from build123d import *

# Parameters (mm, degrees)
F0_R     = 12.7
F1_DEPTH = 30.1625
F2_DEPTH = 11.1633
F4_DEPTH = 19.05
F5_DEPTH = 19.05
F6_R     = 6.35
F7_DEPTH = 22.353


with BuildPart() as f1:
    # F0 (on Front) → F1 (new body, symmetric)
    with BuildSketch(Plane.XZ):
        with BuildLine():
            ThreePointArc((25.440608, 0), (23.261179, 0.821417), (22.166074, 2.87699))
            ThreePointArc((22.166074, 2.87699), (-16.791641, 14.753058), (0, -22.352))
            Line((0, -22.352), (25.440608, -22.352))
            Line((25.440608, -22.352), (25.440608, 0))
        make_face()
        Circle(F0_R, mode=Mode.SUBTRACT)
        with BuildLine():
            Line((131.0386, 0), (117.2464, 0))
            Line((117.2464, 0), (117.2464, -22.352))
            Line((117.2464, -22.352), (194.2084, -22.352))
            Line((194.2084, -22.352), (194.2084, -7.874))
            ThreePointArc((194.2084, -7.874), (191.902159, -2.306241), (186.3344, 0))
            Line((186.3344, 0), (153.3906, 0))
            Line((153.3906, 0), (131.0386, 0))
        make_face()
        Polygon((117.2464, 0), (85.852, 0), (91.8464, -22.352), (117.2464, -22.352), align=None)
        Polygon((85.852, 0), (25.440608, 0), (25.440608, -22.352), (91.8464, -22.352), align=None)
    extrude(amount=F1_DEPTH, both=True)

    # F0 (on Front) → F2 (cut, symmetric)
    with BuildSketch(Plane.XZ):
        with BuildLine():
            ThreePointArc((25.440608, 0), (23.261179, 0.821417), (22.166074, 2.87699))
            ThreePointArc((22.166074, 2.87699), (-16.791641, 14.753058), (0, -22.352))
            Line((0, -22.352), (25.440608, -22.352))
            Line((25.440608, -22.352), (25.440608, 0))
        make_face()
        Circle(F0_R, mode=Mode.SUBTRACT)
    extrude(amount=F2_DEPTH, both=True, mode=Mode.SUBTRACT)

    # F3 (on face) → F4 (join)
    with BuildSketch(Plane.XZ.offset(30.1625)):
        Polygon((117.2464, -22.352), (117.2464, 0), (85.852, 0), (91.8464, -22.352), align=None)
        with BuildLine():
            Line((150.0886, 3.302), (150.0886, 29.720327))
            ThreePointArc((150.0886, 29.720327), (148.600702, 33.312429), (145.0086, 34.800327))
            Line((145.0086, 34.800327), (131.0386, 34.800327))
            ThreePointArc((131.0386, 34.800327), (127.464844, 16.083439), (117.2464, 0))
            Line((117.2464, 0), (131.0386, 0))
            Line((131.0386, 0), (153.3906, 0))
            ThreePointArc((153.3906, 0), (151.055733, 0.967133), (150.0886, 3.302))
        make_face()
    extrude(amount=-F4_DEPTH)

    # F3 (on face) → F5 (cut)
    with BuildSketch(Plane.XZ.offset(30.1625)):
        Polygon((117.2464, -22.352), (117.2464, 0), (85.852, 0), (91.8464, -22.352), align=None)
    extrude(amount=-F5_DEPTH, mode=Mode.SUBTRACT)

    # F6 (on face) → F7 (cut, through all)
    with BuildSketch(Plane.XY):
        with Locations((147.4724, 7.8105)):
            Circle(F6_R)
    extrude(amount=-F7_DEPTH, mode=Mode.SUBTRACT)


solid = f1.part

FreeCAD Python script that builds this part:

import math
import FreeCAD as App
import Part
import Sketcher
Q = App.Units.Quantity


def add_polygon(sketch, points):
    """Adds a closed chain of lines whose ends are joined by coincident constraints."""
    first, n = sketch.GeometryCount, len(points)
    for a, b in zip(points, points[1:] + points[:1]):
        sketch.addGeometry(Part.LineSegment(App.Vector(*a, 0), App.Vector(*b, 0)), False)
    for i in range(n):
        sketch.addConstraint(Sketcher.Constraint("Coincident", first + i, 2, first + (i + 1) % n, 1))

doc = App.newDocument("Part")
params = doc.addObject("Spreadsheet::Sheet", "Params")
for row, (alias, value) in enumerate([
    ("sketch1_diameter", "1 in"),
    ("sketch1_radius", "0.31 in"),
    ("sketch1_radius2", "0.1300001 in"),
    ("sketch1_radius3", "0.88 in"),
    ("sketch1_width", "7.646 in"),
    ("pad1_length", "2.375 in"),
    ("sketch2_diameter", "1 in"),
    ("sketch2_radius", "0.1300001 in"),
    ("sketch2_radius2", "0.88 in"),
    ("pocket1_length", "0.879 in"),
    ("sketch3_radius", "2 in"),
    ("sketch3_radius2", "0.2000001 in"),
    ("sketch3_width", "1 in"),
    ("sketch3_radius3", "0.1299999 in"),
    ("sketch3_width2", "0.55 in"),
    ("pad2_length", "0.75 in"),
    ("sketch4_width", "1 in"),
    ("sketch4_height", "0.88 in"),
    ("sketch4_width2", "1.236 in"),
    ("pocket2_length", "0.75 in"),
    ("sketch5_diameter", "0.5 in"),
], start=1):
    params.set(f"A{row}", alias)
    params.set(f"B{row}", "=" + value)
    params.setAlias(f"B{row}", alias)

body = doc.addObject("PartDesign::Body", "Body")

sketch1 = body.newObject("Sketcher::SketchObject", "Sketch")
sketch1.AttachmentSupport = (doc.getObject("XZ_Plane"), [""])
sketch1.MapMode = "FlatFace"
sketch1.addGeometry([
    Part.LineSegment(App.Vector(0, -22.4, 0), App.Vector(194.2, -22.4, 0)),
    Part.LineSegment(App.Vector(194.2, -22.4, 0), App.Vector(194.2, -7.9, 0)),
    Part.ArcOfCircle(Part.Circle(App.Vector(186.3, -7.9, 0), App.Vector(0, 0, 1), 7.9), math.radians(0), math.radians(90)),
    Part.LineSegment(App.Vector(186.3, 0, 0), App.Vector(25.4, 0, 0)),
    Part.ArcOfCircle(Part.Circle(App.Vector(25.4, 3.3, 0), App.Vector(0, 0, 1), 3.3), math.radians(-173), math.radians(-90)),
    Part.ArcOfCircle(Part.Circle(App.Vector(0, 0, 0), App.Vector(0, 0, 1), 22.4), math.radians(7), math.radians(270)),
    Part.Circle(App.Vector(0, 0, 0), App.Vector(0, 0, 1), 12.7),
], False)
sketch1.addConstraint([
    Sketcher.Constraint("Coincident", 0, 2, 1, 1),
    Sketcher.Constraint("Tangent", 1, 2, 2, 1),
    Sketcher.Constraint("Tangent", 2, 2, 3, 1),
    Sketcher.Constraint("Tangent", 3, 2, 4, 2),
    Sketcher.Constraint("Tangent", 4, 1, 5, 1),
    Sketcher.Constraint("Tangent", 5, 2, 0, 1),
    Sketcher.Constraint("Horizontal", 0),
    Sketcher.Constraint("Vertical", 1),
    Sketcher.Constraint("Horizontal", 3),
    Sketcher.Constraint("Coincident", 5, 3, -1, 1),
    Sketcher.Constraint("Coincident", 6, 3, -1, 1),
    Sketcher.Constraint("PointOnObject", 2, 2, -1),
    Sketcher.Constraint("Diameter", 6, Q("1 in")),
    Sketcher.Constraint("Radius", 2, Q("0.31 in")),
    Sketcher.Constraint("Radius", 4, Q("0.1300001 in")),
    Sketcher.Constraint("Radius", 5, Q("0.88 in")),
    Sketcher.Constraint("DistanceX", 0, 1, 0, 2, Q("7.646 in")),
])
sketch1.setExpression("Constraints[12]", "Params.sketch1_diameter")
sketch1.setExpression("Constraints[13]", "Params.sketch1_radius")
sketch1.setExpression("Constraints[14]", "Params.sketch1_radius2")
sketch1.setExpression("Constraints[15]", "Params.sketch1_radius3")
sketch1.setExpression("Constraints[16]", "Params.sketch1_width")
pad1 = body.newObject("PartDesign::Pad", "Pad")
pad1.Profile = sketch1
pad1.setExpression("Length", "Params.pad1_length")
pad1.Midplane = True

sketch2 = body.newObject("Sketcher::SketchObject", "Sketch001")
sketch2.AttachmentSupport = (doc.getObject("XZ_Plane"), [""])
sketch2.MapMode = "FlatFace"
sketch2.addGeometry([
    Part.ArcOfCircle(Part.Circle(App.Vector(25.4, 3.3, 0), App.Vector(0, 0, 1), 3.3), math.radians(-173), math.radians(-90)),
    Part.ArcOfCircle(Part.Circle(App.Vector(0, 0, 0), App.Vector(0, 0, 1), 22.4), math.radians(7), math.radians(270)),
    Part.LineSegment(App.Vector(0, -22.4, 0), App.Vector(25.4, -22.4, 0)),
    Part.LineSegment(App.Vector(25.4, -22.4, 0), App.Vector(25.4, 0, 0)),
    Part.Circle(App.Vector(0, 0, 0), App.Vector(0, 0, 1), 12.7),
], False)
sketch2.addConstraint([
    Sketcher.Constraint("Tangent", 0, 1, 1, 1),
    Sketcher.Constraint("Tangent", 1, 2, 2, 1),
    Sketcher.Constraint("Coincident", 2, 2, 3, 1),
    Sketcher.Constraint("Coincident", 3, 2, 0, 2),
    Sketcher.Constraint("Horizontal", 2),
    Sketcher.Constraint("Vertical", 3),
    Sketcher.Constraint("Coincident", 1, 3, -1, 1),
    Sketcher.Constraint("Coincident", 4, 3, -1, 1),
    Sketcher.Constraint("PointOnObject", 3, 2, -1),
    Sketcher.Constraint("Vertical", 0, 3, 2, 2),
    Sketcher.Constraint("Diameter", 4, Q("1 in")),
    Sketcher.Constraint("Radius", 0, Q("0.1300001 in")),
    Sketcher.Constraint("Radius", 1, Q("0.88 in")),
])
sketch2.setExpression("Constraints[10]", "Params.sketch2_diameter")
sketch2.setExpression("Constraints[11]", "Params.sketch2_radius")
sketch2.setExpression("Constraints[12]", "Params.sketch2_radius2")
pocket1 = body.newObject("PartDesign::Pocket", "Pocket")
pocket1.Profile = sketch2
pocket1.setExpression("Length", "Params.pocket1_length")
pocket1.Midplane = True

sketch3 = body.newObject("Sketcher::SketchObject", "Sketch002")
sketch3.AttachmentSupport = (doc.getObject("XZ_Plane"), [""])
sketch3.MapMode = "FlatFace"
sketch3.AttachmentOffset = App.Placement(App.Vector(0, 0, 1.1875 * 25.4), App.Rotation())
add_polygon(sketch3, [(117.2, -22.4), (117.2, 0), (85.9, 0), (91.8, -22.4)])
sketch3.addGeometry(Part.LineSegment(App.Vector(150.1, 3.3, 0), App.Vector(150.1, 29.7, 0)), False)
sketch3.addGeometry(Part.ArcOfCircle(Part.Circle(App.Vector(145, 29.7, 0), App.Vector(0, 0, 1), 5.1), math.radians(0), math.radians(90)), False)
sketch3.addGeometry(Part.LineSegment(App.Vector(145, 34.8, 0), App.Vector(131, 34.8, 0)), False)
sketch3.addGeometry(Part.ArcOfCircle(Part.Circle(App.Vector(80.2, 34.8, 0), App.Vector(0, 0, 1), 50.8), math.radians(-43), math.radians(0)), False)
sketch3.addGeometry(Part.LineSegment(App.Vector(117.2, 0, 0), App.Vector(153.4, 0, 0)), False)
sketch3.addGeometry(Part.ArcOfCircle(Part.Circle(App.Vector(153.4, 3.3, 0), App.Vector(0, 0, 1), 3.3), math.radians(180), math.radians(270)), False)
sketch3.addConstraint([
    Sketcher.Constraint("Tangent", 4, 2, 5, 1),
    Sketcher.Constraint("Tangent", 5, 2, 6, 1),
    Sketcher.Constraint("Coincident", 6, 2, 7, 2),
    Sketcher.Constraint("Coincident", 7, 1, 8, 1),
    Sketcher.Constraint("Tangent", 8, 2, 9, 2),
    Sketcher.Constraint("Tangent", 9, 1, 4, 1),
    Sketcher.Constraint("Vertical", 0),
    Sketcher.Constraint("Horizontal", 1),
    Sketcher.Constraint("Horizontal", 3),
    Sketcher.Constraint("Vertical", 4),
    Sketcher.Constraint("Horizontal", 6),
    Sketcher.Constraint("Horizontal", 8),
    Sketcher.Constraint("Coincident", 7, 1, 0, 2),
    Sketcher.Constraint("PointOnObject", 0, 2, -1),
    Sketcher.Constraint("Horizontal", 7, 3, 5, 2),
    Sketcher.Constraint("Radius", 7, Q("2 in")),
    Sketcher.Constraint("Radius", 5, Q("0.2000001 in")),
    Sketcher.Constraint("DistanceX", 3, 1, 3, 2, Q("1 in")),
    Sketcher.Constraint("Radius", 9, Q("0.1299999 in")),
    Sketcher.Constraint("DistanceX", 6, 2, 6, 1, Q("0.55 in")),
    Sketcher.Constraint("DistanceY", 0, 1, 0, 2, Q("0.88 in")),
    Sketcher.Constraint("DistanceX", 1, 2, 1, 1, Q("1.236 in")),
    Sketcher.Constraint("DistanceX", 8, 1, 8, 2, Q("1.423 in")),
    Sketcher.Constraint("DistanceX", -1, 1, 1, 2, Q("3.38 in")),
])
sketch3.setExpression("Constraints[19]", "Params.sketch3_radius")
sketch3.setExpression("Constraints[20]", "Params.sketch3_radius2")
sketch3.setExpression("Constraints[21]", "Params.sketch3_width")
sketch3.setExpression("Constraints[22]", "Params.sketch3_radius3")
sketch3.setExpression("Constraints[23]", "Params.sketch3_width2")
pad2 = body.newObject("PartDesign::Pad", "Pad001")
pad2.Profile = sketch3
pad2.setExpression("Length", "Params.pad2_length")
pad2.Reversed = True

sketch4 = body.newObject("Sketcher::SketchObject", "Sketch003")
sketch4.AttachmentSupport = (doc.getObject("XZ_Plane"), [""])
sketch4.MapMode = "FlatFace"
sketch4.AttachmentOffset = App.Placement(App.Vector(0, 0, 1.1875 * 25.4), App.Rotation())
add_polygon(sketch4, [(117, -22), (117, 0), (86, 0), (92, -22)])
sketch4.addConstraint([
    Sketcher.Constraint("Vertical", 0),
    Sketcher.Constraint("Horizontal", 1),
    Sketcher.Constraint("Horizontal", 3),
    Sketcher.Constraint("PointOnObject", 0, 2, -1),
    Sketcher.Constraint("DistanceX", 3, 1, 3, 2, Q("1 in")),
    Sketcher.Constraint("DistanceY", 0, 1, 0, 2, Q("0.88 in")),
    Sketcher.Constraint("DistanceX", 1, 2, 1, 1, Q("1.236 in")),
    Sketcher.Constraint("DistanceX", -1, 1, 1, 2, Q("3.38 in")),
])
sketch4.setExpression("Constraints[8]", "Params.sketch4_width")
sketch4.setExpression("Constraints[9]", "Params.sketch4_height")
sketch4.setExpression("Constraints[10]", "Params.sketch4_width2")
pocket2 = body.newObject("PartDesign::Pocket", "Pocket001")
pocket2.Profile = sketch4
pocket2.setExpression("Length", "Params.pocket2_length")

sketch5 = body.newObject("Sketcher::SketchObject", "Sketch004")
sketch5.AttachmentSupport = (doc.getObject("XY_Plane"), [""])
sketch5.MapMode = "FlatFace"
sketch5.addGeometry(Part.Circle(App.Vector(147, 8, 0), App.Vector(0, 0, 1), 6), False)
sketch5.addConstraint([
    Sketcher.Constraint("Diameter", 0, Q("0.5 in")),
    Sketcher.Constraint("DistanceX", -1, 1, 0, 3, Q("5.806 in")),
    Sketcher.Constraint("DistanceY", -1, 1, 0, 3, Q("0.3075 in")),
])
sketch5.setExpression("Constraints[0]", "Params.sketch5_diameter")
pocket3 = body.newObject("PartDesign::Pocket", "Pocket002")
pocket3.Profile = sketch5
pocket3.Type = "ThroughAll"

doc.recompute()
